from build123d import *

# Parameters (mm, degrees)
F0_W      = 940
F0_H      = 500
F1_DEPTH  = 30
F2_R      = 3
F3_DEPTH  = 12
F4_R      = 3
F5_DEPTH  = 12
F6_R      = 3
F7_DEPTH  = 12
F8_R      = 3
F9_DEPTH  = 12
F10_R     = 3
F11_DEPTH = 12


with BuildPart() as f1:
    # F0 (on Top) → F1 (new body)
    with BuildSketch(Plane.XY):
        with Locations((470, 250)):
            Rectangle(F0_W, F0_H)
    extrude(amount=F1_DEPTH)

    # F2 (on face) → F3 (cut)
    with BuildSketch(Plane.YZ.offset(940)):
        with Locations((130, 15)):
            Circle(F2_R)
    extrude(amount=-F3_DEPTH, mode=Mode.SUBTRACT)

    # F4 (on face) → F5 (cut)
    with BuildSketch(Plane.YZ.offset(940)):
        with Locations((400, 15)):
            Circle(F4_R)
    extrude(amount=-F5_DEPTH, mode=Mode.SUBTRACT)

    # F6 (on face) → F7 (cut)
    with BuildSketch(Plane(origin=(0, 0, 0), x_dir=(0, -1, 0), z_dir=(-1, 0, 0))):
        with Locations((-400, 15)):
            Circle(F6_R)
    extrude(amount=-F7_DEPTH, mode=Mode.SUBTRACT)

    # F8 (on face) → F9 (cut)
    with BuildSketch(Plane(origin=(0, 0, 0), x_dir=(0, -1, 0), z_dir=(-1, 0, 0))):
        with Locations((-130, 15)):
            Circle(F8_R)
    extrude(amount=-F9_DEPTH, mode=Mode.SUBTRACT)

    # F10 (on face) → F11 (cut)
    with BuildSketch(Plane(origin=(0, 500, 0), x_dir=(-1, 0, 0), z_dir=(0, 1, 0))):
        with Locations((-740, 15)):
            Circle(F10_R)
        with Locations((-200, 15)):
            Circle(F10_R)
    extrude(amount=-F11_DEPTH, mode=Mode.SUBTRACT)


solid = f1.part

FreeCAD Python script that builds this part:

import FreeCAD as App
import Part
import Sketcher
from FreeCAD import Vector
Q = App.Units.Quantity

doc = App.newDocument("Part")
body = doc.addObject("PartDesign::Body", "Body")

# Sketch on XY plane
sketch1 = body.newObject("Sketcher::SketchObject", "Sketch")
sketch1.AttachmentSupport = (doc.getObject("XY_Plane"), [""])
sketch1.MapMode = "FlatFace"
sketch1.addGeometry(Part.LineSegment(Vector(0, 500, 0), Vector(0, 0, 0)), False)
sketch1.addGeometry(Part.LineSegment(Vector(0, 0, 0), Vector(940, 0, 0)), False)
sketch1.addGeometry(Part.LineSegment(Vector(940, 0, 0), Vector(940, 500, 0)), False)
sketch1.addGeometry(Part.LineSegment(Vector(940, 500, 0), Vector(0, 500, 0)), False)
sketch1.addConstraint(Sketcher.Constraint("Coincident", 0, 2, 1, 1))
sketch1.addConstraint(Sketcher.Constraint("Coincident", 1, 2, 2, 1))
sketch1.addConstraint(Sketcher.Constraint("Coincident", 2, 2, 3, 1))
sketch1.addConstraint(Sketcher.Constraint("Coincident", 3, 2, 0, 1))
sketch1.addConstraint(Sketcher.Constraint("Vertical", 0))
sketch1.addConstraint(Sketcher.Constraint("Horizontal", 1))
sketch1.addConstraint(Sketcher.Constraint("Vertical", 2))
sketch1.addConstraint(Sketcher.Constraint("Horizontal", 3))
sketch1.addConstraint(Sketcher.Constraint("Coincident", 0, 2, -1, 1))
sketch1.addConstraint(Sketcher.Constraint("DistanceX", 1, 1, 1, 2, Q("940 mm")))
sketch1.addConstraint(Sketcher.Constraint("DistanceY", 0, 2, 0, 1, Q("500 mm")))
pad1 = body.newObject("PartDesign::Pad", "Pad")
pad1.Profile = sketch1
pad1.Length = 30

# Sketch on YZ plane
sketch2 = body.newObject("Sketcher::SketchObject", "Sketch001")
sketch2.AttachmentSupport = (doc.getObject("YZ_Plane"), [""])
sketch2.MapMode = "FlatFace"
sketch2.AttachmentOffset = App.Placement(Vector(0, 0, 940), App.Rotation())
sketch2.addGeometry(Part.Circle(Vector(130, 15, 0), Vector(0, 0, 1), 3), False)
sketch2.addConstraint(Sketcher.Constraint("Diameter", 0, Q("6 mm")))
sketch2.addConstraint(Sketcher.Constraint("DistanceX", -1, 1, 0, 3, Q("130 mm")))
sketch2.addConstraint(Sketcher.Constraint("DistanceY", -1, 1, 0, 3, Q("15 mm")))
pocket1 = body.newObject("PartDesign::Pocket", "Pocket")
pocket1.Profile = sketch2
pocket1.Length = 12

# Sketch on YZ plane
sketch3 = body.newObject("Sketcher::SketchObject", "Sketch002")
sketch3.AttachmentSupport = (doc.getObject("YZ_Plane"), [""])
sketch3.MapMode = "FlatFace"
sketch3.AttachmentOffset = App.Placement(Vector(0, 0, 940), App.Rotation())
sketch3.addGeometry(Part.Circle(Vector(400, 15, 0), Vector(0, 0, 1), 3), False)
sketch3.addConstraint(Sketcher.Constraint("Diameter", 0, Q("6 mm")))
sketch3.addConstraint(Sketcher.Constraint("DistanceX", -1, 1, 0, 3, Q("400 mm")))
sketch3.addConstraint(Sketcher.Constraint("DistanceY", -1, 1, 0, 3, Q("15 mm")))
pocket2 = body.newObject("PartDesign::Pocket", "Pocket001")
pocket2.Profile = sketch3
pocket2.Length = 12

# Sketch on YZ plane
sketch4 = body.newObject("Sketcher::SketchObject", "Sketch003")
sketch4.AttachmentSupport = (doc.getObject("YZ_Plane"), [""])
sketch4.MapMode = "FlatFace"
sketch4.addGeometry(Part.Circle(Vector(400, 15, 0), Vector(0, 0, 1), 3), False)
sketch4.addConstraint(Sketcher.Constraint("Diameter", 0, Q("6 mm")))
sketch4.addConstraint(Sketcher.Constraint("DistanceX", -1, 1, 0, 3, Q("400 mm")))
sketch4.addConstraint(Sketcher.Constraint("DistanceY", -1, 1, 0, 3, Q("15 mm")))
pocket3 = body.newObject("PartDesign::Pocket", "Pocket002")
pocket3.Profile = sketch4
pocket3.Length = 12
pocket3.Reversed = True

# Sketch on YZ plane
sketch5 = body.newObject("Sketcher::SketchObject", "Sketch004")
sketch5.AttachmentSupport = (doc.getObject("YZ_Plane"), [""])
sketch5.MapMode = "FlatFace"
sketch5.addGeometry(Part.Circle(Vector(130, 15, 0), Vector(0, 0, 1), 3), False)
sketch5.addConstraint(Sketcher.Constraint("Diameter", 0, Q("6 mm")))
sketch5.addConstraint(Sketcher.Constraint("DistanceX", -1, 1, 0, 3, Q("130 mm")))
sketch5.addConstraint(Sketcher.Constraint("DistanceY", -1, 1, 0, 3, Q("15 mm")))
pocket4 = body.newObject("PartDesign::Pocket", "Pocket003")
pocket4.Profile = sketch5
pocket4.Length = 12
pocket4.Reversed = True

# Sketch on XZ plane
sketch6 = body.newObject("Sketcher::SketchObject", "Sketch005")
sketch6.AttachmentSupport = (doc.getObject("XZ_Plane"), [""])
sketch6.MapMode = "FlatFace"
sketch6.AttachmentOffset = App.Placement(Vector(0, 0, -500), App.Rotation())
sketch6.addGeometry(Part.Circle(Vector(740, 15, 0), Vector(0, 0, 1), 3), False)
sketch6.addGeometry(Part.Circle(Vector(200, 15, 0), Vector(0, 0, 1), 3), False)
sketch6.addConstraint(Sketcher.Constraint("Equal", 0, 1))
sketch6.addConstraint(Sketcher.Constraint("Horizontal", 0, 3, 1, 3))
sketch6.addConstraint(Sketcher.Constraint("Diameter", 0, Q("6 mm")))
sketch6.addConstraint(Sketcher.Constraint("DistanceX", -1, 1, 0, 3, Q("740 mm")))
sketch6.addConstraint(Sketcher.Constraint("DistanceY", -1, 1, 0, 3, Q("15 mm")))
sketch6.addConstraint(Sketcher.Constraint("DistanceX", -1, 1, 1, 3, Q("200 mm")))
pocket5 = body.newObject("PartDesign::Pocket", "Pocket004")
pocket5.Profile = sketch6
pocket5.Length = 12
pocket5.Reversed = True

doc.recompute()
